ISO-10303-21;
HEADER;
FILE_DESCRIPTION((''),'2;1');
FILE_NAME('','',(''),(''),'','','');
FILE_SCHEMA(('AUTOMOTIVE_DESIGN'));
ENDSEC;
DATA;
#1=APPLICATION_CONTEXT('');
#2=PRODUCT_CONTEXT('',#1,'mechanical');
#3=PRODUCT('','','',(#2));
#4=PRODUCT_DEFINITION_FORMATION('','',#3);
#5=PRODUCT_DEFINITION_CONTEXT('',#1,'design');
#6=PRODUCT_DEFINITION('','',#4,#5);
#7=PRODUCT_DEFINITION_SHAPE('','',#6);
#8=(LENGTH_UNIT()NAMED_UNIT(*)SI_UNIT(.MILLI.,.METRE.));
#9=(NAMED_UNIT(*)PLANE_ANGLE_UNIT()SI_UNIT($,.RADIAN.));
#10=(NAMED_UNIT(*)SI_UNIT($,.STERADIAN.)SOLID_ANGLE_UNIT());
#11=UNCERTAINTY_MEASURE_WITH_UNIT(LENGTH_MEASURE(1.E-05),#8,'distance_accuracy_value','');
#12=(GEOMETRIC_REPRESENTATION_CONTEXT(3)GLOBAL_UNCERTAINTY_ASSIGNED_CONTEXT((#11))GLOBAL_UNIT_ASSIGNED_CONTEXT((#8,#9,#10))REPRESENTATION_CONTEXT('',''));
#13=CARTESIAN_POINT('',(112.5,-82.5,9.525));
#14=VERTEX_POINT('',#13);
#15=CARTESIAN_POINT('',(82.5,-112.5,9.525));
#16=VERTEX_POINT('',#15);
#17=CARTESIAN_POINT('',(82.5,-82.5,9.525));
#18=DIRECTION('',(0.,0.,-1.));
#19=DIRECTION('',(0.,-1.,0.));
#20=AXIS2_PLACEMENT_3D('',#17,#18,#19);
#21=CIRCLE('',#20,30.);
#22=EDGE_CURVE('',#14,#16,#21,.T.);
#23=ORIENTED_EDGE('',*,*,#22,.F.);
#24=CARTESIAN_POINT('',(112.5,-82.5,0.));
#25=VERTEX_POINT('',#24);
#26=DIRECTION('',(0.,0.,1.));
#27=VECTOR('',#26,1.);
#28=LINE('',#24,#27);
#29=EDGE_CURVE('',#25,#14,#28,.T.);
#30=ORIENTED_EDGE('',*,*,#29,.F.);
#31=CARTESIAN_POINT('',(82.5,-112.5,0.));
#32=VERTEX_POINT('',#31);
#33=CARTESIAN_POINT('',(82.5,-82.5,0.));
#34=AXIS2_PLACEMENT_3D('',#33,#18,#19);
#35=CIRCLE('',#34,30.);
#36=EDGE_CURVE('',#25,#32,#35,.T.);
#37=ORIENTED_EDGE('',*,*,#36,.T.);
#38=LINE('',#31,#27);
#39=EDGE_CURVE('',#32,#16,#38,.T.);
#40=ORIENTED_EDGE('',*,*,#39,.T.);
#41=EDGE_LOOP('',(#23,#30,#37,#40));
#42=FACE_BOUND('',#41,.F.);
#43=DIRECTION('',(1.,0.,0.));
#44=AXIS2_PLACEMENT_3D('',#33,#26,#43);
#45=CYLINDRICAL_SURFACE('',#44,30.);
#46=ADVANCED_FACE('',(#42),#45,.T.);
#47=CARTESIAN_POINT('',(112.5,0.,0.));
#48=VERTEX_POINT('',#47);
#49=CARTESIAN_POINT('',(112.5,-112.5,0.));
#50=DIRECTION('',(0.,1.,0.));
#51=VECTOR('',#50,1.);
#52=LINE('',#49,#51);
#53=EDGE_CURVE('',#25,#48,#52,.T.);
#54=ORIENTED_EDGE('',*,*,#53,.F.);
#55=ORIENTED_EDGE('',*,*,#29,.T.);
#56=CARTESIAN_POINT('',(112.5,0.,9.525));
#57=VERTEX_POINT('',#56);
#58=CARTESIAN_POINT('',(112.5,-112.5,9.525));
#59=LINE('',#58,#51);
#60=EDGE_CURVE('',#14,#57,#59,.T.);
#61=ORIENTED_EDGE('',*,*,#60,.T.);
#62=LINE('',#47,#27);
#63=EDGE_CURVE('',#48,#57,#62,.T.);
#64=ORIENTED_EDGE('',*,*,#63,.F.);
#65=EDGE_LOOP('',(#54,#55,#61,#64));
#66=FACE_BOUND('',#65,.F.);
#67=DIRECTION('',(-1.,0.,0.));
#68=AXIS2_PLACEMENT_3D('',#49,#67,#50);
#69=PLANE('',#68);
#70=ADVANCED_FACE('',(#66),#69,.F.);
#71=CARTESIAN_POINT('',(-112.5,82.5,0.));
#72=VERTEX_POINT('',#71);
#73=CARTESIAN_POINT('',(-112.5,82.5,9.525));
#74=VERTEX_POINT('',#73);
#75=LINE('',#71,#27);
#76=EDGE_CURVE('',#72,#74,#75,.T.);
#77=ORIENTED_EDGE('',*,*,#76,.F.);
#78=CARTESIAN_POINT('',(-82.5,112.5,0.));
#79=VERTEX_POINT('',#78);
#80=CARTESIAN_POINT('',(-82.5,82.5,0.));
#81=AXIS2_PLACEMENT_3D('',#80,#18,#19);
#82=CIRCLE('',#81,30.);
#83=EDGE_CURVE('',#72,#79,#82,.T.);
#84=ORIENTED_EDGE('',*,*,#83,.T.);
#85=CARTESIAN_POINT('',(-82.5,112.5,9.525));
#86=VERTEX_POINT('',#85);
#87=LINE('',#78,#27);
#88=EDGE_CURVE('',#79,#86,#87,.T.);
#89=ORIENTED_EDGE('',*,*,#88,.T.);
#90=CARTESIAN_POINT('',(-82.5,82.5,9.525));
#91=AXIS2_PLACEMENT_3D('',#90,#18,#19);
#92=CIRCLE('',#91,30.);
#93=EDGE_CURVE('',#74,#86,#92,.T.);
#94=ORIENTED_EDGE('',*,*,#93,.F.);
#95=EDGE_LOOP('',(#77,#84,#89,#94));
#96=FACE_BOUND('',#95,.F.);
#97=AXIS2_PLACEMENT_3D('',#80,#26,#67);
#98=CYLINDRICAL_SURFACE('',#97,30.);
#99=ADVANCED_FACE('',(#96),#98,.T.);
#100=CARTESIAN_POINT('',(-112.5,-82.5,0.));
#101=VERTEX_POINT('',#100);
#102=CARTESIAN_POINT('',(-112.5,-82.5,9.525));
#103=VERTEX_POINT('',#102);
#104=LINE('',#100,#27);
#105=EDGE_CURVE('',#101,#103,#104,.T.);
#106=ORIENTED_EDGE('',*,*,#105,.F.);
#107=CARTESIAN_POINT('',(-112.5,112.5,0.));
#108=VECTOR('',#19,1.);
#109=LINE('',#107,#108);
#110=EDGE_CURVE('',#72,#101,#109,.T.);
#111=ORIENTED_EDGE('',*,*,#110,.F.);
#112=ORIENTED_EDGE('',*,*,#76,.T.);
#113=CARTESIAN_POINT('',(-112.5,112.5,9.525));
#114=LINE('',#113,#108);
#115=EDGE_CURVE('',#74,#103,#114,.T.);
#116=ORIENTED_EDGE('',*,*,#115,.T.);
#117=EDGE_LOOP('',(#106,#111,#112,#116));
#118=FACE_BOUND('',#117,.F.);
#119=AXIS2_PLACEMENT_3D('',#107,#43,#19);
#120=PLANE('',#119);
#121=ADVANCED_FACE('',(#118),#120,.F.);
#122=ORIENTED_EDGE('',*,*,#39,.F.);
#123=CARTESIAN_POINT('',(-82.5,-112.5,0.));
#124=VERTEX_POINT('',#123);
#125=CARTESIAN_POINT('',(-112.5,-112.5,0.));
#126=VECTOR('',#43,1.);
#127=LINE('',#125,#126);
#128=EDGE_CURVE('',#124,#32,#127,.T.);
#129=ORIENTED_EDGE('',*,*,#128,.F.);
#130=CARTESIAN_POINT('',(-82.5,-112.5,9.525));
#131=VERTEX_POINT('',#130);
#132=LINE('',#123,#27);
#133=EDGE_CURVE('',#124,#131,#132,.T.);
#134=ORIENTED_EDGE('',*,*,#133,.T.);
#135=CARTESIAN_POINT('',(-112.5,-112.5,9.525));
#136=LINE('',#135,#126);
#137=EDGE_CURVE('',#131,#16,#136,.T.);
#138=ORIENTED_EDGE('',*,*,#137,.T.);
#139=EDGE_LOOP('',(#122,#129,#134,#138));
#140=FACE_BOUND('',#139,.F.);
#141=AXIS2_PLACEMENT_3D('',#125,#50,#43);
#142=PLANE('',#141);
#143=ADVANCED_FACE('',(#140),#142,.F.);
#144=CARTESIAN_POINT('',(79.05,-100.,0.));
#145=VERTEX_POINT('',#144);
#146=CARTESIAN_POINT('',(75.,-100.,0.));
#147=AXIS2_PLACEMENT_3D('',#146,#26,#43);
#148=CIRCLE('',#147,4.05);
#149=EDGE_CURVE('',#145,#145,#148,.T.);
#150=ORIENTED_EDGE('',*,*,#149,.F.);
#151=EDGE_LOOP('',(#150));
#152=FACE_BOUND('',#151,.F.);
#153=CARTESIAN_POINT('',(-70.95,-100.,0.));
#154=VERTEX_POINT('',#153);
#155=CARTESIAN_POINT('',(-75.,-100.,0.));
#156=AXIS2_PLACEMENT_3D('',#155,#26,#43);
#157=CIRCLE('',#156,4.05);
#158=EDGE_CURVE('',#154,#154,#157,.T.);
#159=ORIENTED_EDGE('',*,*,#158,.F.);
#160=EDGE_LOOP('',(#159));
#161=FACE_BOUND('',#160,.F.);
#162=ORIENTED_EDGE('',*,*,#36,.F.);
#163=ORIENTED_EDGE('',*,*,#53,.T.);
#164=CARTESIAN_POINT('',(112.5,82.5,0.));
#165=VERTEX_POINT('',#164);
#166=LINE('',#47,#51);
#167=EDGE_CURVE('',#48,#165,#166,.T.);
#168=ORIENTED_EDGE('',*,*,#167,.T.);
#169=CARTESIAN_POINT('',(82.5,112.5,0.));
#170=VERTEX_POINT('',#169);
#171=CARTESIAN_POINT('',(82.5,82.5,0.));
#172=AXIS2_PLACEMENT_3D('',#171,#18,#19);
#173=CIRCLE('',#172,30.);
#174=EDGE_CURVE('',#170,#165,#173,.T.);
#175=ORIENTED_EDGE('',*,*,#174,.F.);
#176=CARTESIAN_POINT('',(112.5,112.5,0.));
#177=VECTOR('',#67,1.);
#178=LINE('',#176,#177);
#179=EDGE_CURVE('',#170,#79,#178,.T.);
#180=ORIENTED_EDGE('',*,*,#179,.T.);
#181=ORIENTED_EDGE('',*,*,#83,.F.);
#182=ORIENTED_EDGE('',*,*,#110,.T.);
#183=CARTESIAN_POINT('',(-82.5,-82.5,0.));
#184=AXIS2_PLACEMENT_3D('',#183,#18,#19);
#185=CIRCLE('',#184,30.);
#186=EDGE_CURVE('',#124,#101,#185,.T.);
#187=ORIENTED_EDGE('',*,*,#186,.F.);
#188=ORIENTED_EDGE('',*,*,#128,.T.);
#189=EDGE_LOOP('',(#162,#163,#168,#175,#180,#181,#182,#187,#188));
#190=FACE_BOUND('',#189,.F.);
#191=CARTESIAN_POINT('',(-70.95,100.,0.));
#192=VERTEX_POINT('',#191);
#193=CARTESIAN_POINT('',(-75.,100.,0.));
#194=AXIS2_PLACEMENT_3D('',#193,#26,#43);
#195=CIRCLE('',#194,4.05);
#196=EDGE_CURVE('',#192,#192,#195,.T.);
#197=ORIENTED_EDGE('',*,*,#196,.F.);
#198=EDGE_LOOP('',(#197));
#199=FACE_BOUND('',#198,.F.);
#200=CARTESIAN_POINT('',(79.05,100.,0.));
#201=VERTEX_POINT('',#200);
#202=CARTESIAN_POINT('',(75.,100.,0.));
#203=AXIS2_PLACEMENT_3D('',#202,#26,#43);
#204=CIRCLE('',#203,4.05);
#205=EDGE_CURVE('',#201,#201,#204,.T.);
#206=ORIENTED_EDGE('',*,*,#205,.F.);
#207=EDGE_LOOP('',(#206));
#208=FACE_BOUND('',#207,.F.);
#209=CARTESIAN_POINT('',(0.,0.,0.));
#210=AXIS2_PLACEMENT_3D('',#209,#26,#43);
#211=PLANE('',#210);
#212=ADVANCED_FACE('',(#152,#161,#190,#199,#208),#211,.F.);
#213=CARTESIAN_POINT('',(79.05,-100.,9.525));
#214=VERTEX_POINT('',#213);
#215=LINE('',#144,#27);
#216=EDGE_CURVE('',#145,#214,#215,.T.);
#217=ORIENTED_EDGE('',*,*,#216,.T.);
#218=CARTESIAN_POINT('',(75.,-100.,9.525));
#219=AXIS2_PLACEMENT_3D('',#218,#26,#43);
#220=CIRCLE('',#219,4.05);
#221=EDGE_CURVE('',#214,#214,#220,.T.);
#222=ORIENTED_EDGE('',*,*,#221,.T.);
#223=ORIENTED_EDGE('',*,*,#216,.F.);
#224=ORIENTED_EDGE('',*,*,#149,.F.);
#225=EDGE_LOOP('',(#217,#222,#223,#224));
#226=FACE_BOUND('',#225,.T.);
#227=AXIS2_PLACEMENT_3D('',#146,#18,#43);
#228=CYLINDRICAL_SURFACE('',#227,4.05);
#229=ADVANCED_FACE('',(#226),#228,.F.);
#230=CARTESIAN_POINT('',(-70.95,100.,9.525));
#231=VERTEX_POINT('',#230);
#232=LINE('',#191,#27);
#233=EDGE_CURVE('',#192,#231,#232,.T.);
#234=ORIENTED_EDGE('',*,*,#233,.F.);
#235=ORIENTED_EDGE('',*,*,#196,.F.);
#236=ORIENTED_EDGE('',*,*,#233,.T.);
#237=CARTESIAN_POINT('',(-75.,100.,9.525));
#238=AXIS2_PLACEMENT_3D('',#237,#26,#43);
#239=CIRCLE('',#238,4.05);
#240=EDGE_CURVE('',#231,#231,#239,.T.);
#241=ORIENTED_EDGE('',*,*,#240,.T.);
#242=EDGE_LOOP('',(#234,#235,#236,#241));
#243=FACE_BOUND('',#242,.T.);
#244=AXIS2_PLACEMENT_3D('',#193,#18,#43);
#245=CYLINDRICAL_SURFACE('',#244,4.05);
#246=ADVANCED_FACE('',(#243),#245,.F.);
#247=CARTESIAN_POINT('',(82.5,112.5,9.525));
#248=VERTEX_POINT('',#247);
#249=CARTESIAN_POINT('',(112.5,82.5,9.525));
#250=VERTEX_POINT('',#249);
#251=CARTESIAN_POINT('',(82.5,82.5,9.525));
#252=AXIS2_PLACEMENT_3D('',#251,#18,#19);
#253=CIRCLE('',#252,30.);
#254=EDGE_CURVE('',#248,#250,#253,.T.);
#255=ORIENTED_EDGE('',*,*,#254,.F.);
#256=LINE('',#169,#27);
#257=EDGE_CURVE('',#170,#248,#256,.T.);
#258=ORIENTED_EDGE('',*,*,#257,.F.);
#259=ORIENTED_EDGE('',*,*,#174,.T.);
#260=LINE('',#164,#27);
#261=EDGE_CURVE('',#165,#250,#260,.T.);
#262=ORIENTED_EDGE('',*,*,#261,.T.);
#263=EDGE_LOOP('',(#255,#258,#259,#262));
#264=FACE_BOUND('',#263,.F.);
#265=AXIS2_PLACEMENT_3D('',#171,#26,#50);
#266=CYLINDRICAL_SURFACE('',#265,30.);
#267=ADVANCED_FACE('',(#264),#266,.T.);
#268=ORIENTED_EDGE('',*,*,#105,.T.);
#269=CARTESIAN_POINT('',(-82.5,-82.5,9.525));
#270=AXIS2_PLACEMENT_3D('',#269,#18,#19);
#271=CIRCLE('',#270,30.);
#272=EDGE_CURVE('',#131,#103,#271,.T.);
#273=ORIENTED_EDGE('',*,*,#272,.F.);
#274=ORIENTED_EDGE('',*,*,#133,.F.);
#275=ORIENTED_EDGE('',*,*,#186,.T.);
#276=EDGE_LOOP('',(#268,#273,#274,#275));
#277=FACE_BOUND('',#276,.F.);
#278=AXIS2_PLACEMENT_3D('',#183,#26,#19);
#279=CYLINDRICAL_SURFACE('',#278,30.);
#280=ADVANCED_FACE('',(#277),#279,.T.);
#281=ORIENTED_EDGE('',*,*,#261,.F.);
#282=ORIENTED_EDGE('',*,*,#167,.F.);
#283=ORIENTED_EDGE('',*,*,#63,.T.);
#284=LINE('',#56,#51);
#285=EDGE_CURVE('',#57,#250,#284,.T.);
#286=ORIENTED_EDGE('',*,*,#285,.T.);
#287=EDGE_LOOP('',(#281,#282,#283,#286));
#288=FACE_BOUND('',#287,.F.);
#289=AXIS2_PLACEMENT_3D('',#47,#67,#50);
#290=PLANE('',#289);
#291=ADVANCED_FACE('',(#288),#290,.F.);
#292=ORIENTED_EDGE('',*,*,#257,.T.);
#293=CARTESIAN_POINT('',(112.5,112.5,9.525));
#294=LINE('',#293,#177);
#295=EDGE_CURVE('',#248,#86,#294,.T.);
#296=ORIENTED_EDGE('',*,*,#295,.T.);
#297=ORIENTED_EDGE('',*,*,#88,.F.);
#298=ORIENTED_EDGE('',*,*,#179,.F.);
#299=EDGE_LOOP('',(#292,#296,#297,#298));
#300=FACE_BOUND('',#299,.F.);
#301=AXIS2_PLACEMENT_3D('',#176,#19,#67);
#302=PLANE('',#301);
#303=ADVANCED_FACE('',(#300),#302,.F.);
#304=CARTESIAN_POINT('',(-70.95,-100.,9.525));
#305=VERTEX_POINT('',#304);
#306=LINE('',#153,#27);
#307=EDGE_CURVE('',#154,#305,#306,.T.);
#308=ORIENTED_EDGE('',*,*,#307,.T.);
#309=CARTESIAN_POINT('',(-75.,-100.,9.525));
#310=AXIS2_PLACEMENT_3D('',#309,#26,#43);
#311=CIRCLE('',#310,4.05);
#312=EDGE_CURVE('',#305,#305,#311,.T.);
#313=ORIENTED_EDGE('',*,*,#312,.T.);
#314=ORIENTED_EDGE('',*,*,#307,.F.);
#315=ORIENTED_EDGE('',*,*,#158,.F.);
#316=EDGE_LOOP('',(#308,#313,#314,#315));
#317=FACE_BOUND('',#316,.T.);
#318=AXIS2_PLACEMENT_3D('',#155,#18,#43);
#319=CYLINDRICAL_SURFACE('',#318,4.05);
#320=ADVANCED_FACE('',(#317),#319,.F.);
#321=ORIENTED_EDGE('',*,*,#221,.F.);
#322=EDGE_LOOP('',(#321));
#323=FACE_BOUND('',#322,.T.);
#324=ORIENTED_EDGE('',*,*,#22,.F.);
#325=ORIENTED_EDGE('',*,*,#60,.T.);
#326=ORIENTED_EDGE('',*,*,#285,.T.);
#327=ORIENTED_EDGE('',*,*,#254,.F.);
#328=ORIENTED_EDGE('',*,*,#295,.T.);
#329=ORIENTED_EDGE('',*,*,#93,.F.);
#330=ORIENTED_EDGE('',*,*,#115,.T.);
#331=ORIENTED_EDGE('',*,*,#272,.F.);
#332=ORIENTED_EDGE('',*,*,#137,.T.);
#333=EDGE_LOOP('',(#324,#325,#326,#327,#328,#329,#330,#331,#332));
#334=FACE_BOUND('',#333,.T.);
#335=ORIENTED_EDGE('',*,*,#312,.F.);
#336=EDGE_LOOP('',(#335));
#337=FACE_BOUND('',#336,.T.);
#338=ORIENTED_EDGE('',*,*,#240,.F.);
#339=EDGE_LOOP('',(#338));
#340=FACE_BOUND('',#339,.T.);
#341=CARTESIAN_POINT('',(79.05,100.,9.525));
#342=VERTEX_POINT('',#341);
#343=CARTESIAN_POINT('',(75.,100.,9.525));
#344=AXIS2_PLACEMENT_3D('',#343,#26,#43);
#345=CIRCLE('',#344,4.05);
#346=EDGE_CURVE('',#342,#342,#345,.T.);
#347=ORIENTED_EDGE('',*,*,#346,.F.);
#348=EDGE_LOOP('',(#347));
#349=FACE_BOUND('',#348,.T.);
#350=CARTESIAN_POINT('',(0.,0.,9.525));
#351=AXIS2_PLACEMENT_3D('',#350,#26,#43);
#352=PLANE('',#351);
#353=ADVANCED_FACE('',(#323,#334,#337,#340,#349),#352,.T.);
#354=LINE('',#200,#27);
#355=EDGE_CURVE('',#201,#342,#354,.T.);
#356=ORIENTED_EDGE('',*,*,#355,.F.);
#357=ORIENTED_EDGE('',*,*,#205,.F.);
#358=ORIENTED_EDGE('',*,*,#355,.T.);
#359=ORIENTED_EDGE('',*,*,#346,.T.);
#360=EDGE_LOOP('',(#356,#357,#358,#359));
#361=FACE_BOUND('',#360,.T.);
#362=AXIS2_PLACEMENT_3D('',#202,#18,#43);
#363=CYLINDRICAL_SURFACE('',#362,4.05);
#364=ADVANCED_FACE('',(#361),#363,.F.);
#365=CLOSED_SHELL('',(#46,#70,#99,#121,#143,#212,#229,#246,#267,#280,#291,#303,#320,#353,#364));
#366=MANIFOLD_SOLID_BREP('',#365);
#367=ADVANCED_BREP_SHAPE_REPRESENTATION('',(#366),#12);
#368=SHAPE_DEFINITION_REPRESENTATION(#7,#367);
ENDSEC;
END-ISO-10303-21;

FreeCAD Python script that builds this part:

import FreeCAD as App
import Part
import Sketcher

V = App.Vector
Q = App.Units.Quantity


def edges_at(feature, points):
    """Names of the edges that pass closest to the given points."""
    edges = feature.Shape.Edges
    near = lambda p: min(range(len(edges)), key=lambda i: edges[i].distToShape(Part.Vertex(*p))[0])
    return sorted({f"Edge{near(p) + 1}" for p in points})


def add_polygon(sketch, points):
    """Adds a closed chain of lines whose ends are joined by coincident constraints."""
    first, n = sketch.GeometryCount, len(points)
    for a, b in zip(points, points[1:] + points[:1]):
        sketch.addGeometry(Part.LineSegment(App.Vector(*a, 0), App.Vector(*b, 0)), False)
    for i in range(n):
        sketch.addConstraint(Sketcher.Constraint("Coincident", first + i, 2, first + (i + 1) % n, 1))

doc = App.newDocument("Part")
params = doc.addObject("Spreadsheet::Sheet", "Params")
for row, (alias, value) in enumerate([
    ("sketch1_diameter", "8.1 mm"),
    ("sketch1_width", "225 mm"),
    ("pad1_length", "9.525 mm"),
    ("fillet_radius", "30 mm"),
], start=1):
    params.set(f"A{row}", alias)
    params.set(f"B{row}", "=" + value)
    params.setAlias(f"B{row}", alias)

body = doc.addObject("PartDesign::Body", "Body")

# Sketch on XY plane
sketch1 = body.newObject("Sketcher::SketchObject", "Sketch")
sketch1.AttachmentSupport = (doc.getObject("XY_Plane"), [""])
sketch1.MapMode = "FlatFace"
add_polygon(sketch1, [(112.5, -112.5), (112.5, 112.5), (-112.5, 112.5), (-112.5, -112.5)])  # lines 0-3
sketch1.addGeometry(Part.Circle(V(-75, -100, 0), V(0, 0, 1), 4.05), False)  # 4
sketch1.addGeometry(Part.Circle(V(75, -100, 0), V(0, 0, 1), 4.05), False)  # 5
sketch1.addGeometry(Part.Circle(V(-75, 100, 0), V(0, 0, 1), 4.05), False)  # 6
sketch1.addGeometry(Part.Circle(V(75, 100, 0), V(0, 0, 1), 4.05), False)  # 7
sketch1.addConstraint([
    Sketcher.Constraint("Vertical", 0),
    Sketcher.Constraint("Horizontal", 1),
    Sketcher.Constraint("Vertical", 2),
    Sketcher.Constraint("Horizontal", 3),
    Sketcher.Constraint("Equal", 4, 5),
    Sketcher.Constraint("Equal", 5, 6),
    Sketcher.Constraint("Equal", 6, 7),
    Sketcher.Constraint("Symmetric", 5, 3, 6, 3, -1, 1),
    Sketcher.Constraint("Symmetric", 4, 3, 7, 3, -1, 1),
    Sketcher.Constraint("Symmetric", 0, 2, 2, 2, -1, 1),
    Sketcher.Constraint("Symmetric", 4, 3, 5, 3, -2),
    Sketcher.Constraint("Equal", 3, 0),
    Sketcher.Constraint("Diameter", 4, Q("8.1 mm")),
    Sketcher.Constraint("DistanceX", 1, 2, 1, 1, Q("225 mm")),
    Sketcher.Constraint("DistanceX", 4, 3, 5, 3, Q("150 mm")),
    Sketcher.Constraint("DistanceY", 4, 3, 6, 3, Q("200 mm")),
])
sketch1.setExpression("Constraints[16]", "Params.sketch1_diameter")
sketch1.setExpression("Constraints[17]", "Params.sketch1_width")
pad1 = body.newObject("PartDesign::Pad", "Pad")
pad1.Profile = sketch1
pad1.setExpression("Length", "Params.pad1_length")
doc.recompute()

fillet = body.newObject("PartDesign::Fillet", "Fillet")
fillet.Base = (pad1, edges_at(pad1, [
    (-112.5, -112.5, 4.763),
    (-112.5, 112.5, 4.763),
    (112.5, -112.5, 4.763),
    (112.5, 112.5, 4.763),
]))
fillet.setExpression("Radius", "Params.fillet_radius")

doc.recompute()
